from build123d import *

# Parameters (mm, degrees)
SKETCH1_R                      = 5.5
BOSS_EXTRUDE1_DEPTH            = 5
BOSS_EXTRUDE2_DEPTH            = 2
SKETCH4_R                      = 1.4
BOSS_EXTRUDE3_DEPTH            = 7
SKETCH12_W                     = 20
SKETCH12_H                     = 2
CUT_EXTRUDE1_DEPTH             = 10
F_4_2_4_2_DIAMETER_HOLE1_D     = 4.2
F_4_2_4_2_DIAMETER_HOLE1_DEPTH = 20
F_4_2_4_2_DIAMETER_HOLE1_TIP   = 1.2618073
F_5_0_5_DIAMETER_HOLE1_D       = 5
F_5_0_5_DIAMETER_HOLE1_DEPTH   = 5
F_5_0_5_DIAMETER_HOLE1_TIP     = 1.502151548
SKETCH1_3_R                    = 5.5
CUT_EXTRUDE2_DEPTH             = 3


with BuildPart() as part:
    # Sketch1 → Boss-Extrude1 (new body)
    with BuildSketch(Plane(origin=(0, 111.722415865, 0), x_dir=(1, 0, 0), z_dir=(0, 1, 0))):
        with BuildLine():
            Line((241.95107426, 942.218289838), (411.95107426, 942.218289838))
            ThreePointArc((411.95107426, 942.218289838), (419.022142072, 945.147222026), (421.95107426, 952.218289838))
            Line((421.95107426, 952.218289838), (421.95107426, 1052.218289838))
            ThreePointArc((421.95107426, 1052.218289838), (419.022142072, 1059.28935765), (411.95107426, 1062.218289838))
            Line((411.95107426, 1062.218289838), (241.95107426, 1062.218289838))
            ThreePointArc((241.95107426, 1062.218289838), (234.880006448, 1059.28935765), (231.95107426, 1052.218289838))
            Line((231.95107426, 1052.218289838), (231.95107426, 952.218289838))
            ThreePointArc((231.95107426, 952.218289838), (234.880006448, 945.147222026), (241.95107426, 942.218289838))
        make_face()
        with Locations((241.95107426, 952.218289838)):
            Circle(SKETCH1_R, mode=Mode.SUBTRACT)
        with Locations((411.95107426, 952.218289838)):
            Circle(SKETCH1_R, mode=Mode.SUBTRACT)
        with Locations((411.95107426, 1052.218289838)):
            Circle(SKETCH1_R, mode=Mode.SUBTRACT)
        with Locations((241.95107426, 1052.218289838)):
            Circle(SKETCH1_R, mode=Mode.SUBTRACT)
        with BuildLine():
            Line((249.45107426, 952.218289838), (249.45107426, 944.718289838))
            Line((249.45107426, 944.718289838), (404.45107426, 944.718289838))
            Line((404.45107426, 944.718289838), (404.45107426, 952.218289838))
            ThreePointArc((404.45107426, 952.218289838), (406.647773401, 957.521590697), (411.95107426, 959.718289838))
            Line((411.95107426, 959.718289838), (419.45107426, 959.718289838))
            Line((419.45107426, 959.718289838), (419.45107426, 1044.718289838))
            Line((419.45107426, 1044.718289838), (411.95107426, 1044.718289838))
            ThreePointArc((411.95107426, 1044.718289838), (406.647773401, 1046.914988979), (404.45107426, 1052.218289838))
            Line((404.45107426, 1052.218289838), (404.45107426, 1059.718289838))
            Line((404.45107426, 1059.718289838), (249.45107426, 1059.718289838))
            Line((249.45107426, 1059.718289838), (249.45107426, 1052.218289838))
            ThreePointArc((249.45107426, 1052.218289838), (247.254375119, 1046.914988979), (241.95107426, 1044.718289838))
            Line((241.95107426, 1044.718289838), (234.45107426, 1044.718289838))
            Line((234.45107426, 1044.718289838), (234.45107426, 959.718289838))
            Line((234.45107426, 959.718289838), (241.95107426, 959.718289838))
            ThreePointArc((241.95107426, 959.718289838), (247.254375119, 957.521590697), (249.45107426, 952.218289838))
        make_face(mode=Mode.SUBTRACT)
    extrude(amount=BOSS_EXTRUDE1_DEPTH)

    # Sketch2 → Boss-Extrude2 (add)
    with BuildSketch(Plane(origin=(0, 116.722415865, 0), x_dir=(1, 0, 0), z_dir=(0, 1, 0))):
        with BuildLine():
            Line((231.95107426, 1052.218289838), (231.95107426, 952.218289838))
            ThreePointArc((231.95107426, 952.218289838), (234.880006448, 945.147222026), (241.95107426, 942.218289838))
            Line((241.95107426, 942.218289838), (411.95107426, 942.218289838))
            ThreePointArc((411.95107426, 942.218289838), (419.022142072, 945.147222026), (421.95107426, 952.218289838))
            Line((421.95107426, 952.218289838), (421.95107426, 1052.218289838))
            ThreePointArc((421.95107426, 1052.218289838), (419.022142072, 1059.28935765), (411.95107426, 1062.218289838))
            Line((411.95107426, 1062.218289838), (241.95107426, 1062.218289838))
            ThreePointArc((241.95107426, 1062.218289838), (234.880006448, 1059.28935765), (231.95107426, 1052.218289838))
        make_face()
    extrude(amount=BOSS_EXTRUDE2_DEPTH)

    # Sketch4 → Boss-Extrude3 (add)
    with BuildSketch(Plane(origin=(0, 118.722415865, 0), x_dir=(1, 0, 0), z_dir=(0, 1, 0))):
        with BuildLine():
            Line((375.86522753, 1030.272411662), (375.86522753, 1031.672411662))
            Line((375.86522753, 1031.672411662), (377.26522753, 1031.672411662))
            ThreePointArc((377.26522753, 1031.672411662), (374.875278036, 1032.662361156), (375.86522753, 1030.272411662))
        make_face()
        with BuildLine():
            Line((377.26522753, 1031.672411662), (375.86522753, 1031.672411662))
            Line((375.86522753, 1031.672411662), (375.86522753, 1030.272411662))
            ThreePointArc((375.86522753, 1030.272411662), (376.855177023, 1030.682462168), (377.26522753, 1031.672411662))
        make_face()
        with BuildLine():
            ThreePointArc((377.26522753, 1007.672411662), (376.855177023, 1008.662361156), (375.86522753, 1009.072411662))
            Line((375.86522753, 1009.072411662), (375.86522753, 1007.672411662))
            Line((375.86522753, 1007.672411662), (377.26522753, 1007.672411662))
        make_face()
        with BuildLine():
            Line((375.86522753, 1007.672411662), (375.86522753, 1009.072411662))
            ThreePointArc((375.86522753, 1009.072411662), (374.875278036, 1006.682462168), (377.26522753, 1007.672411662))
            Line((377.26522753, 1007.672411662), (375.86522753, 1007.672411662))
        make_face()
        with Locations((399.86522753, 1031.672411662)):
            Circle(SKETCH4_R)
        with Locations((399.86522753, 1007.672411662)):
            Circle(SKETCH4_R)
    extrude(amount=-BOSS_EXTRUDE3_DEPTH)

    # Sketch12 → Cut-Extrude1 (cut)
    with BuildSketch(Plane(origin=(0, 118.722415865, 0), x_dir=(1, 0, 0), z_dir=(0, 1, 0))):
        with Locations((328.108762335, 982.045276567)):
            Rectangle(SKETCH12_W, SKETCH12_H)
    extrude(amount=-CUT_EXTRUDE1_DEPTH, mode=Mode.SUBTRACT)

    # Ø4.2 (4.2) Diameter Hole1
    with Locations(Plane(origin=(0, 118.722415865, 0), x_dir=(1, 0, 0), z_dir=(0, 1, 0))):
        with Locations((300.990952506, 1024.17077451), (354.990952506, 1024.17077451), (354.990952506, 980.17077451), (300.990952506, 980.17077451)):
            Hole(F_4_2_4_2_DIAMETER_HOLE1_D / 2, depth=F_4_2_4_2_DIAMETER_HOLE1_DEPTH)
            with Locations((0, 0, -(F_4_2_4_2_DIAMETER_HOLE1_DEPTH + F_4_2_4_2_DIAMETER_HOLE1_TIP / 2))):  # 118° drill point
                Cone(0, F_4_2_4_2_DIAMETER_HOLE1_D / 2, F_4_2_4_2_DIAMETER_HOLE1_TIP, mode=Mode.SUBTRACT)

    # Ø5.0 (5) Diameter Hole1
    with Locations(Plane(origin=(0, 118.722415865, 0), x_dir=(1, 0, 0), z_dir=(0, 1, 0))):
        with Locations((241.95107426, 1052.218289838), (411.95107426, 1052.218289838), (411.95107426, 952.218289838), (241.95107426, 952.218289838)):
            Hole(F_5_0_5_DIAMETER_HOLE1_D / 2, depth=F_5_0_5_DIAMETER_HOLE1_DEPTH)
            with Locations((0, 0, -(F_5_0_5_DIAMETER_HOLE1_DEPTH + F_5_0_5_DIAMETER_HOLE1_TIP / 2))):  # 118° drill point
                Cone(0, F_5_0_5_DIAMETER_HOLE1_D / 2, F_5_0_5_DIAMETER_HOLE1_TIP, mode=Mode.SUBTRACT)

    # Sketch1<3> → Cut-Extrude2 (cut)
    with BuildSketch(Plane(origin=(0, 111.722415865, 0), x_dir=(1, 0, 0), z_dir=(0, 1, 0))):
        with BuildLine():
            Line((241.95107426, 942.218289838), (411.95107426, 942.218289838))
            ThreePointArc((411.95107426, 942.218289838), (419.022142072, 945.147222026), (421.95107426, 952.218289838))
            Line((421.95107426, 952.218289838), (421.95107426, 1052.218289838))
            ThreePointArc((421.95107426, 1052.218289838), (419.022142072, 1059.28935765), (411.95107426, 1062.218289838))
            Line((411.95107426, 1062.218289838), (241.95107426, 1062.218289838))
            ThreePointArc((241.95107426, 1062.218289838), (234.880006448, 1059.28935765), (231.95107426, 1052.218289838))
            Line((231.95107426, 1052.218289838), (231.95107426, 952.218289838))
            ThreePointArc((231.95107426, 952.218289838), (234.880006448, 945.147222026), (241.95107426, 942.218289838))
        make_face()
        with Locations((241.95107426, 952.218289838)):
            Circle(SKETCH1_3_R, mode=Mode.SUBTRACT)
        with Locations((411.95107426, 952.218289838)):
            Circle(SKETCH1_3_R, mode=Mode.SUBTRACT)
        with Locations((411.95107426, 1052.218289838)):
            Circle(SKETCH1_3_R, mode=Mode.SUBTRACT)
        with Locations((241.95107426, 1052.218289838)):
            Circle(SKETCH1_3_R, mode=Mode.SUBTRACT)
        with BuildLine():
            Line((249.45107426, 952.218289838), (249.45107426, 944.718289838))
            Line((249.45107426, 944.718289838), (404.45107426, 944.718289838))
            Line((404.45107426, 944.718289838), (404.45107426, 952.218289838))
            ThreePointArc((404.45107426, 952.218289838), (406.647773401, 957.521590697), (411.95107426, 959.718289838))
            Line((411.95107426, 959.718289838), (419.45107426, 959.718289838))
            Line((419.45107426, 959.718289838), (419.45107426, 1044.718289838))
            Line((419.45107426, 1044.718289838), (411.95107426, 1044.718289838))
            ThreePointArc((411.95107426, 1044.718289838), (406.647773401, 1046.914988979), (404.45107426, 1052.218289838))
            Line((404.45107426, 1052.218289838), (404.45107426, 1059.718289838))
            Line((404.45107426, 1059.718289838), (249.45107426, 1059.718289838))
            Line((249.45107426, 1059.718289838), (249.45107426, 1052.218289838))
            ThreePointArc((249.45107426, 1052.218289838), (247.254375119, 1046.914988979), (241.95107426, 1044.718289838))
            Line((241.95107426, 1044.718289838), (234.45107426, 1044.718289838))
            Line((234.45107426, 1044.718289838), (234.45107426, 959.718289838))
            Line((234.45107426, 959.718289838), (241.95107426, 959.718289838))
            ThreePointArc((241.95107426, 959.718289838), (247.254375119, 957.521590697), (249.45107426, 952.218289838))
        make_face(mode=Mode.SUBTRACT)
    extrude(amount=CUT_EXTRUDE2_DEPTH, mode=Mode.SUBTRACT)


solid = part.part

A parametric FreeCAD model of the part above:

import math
import FreeCAD as App
import Part
import Sketcher
from FreeCAD import Vector
Q = App.Units.Quantity

doc = App.newDocument("Part")
params = doc.addObject("Spreadsheet::Sheet", "Params")
for row, (alias, value) in enumerate([
    ("sketch1_diameter", "11 mm"),
    ("sketch1_radius", "10 mm"),
    ("sketch1_radius2", "7.5 mm"),
    ("sketch1_width", "170 mm"),
    ("sketch1_height", "100 mm"),
    ("pad1_length", "5 mm"),
    ("sketch2_radius", "10 mm"),
    ("sketch2_width", "170 mm"),
    ("sketch2_height", "100 mm"),
    ("pad2_length", "2 mm"),
    ("sketch3_diameter", "2.8 mm"),
    ("pad3_length", "7 mm"),
    ("sketch4_width", "20 mm"),
    ("sketch4_height", "2 mm"),
    ("pocket1_length", "10 mm"),
    ("sketch5_diameter", "4.2 mm"),
    ("hole_diameter", "4.2 mm"),
    ("hole_depth", "20 mm"),
    ("sketch6_diameter", "5 mm"),
    ("hole2_diameter", "5 mm"),
    ("hole2_depth", "5 mm"),
    ("sketch7_diameter", "11 mm"),
    ("sketch7_radius", "10 mm"),
    ("sketch7_radius2", "7.5 mm"),
    ("sketch7_width", "170 mm"),
    ("sketch7_height", "100 mm"),
    ("pocket2_length", "3 mm"),
], start=1):
    params.set(f"A{row}", alias)
    params.set(f"B{row}", "=" + value)
    params.setAlias(f"B{row}", alias)

body = doc.addObject("PartDesign::Body", "Body")

# Sketch on XZ plane
sketch1 = body.newObject("Sketcher::SketchObject", "Sketch")
sketch1.AttachmentSupport = (doc.getObject("XZ_Plane"), [""])
sketch1.MapMode = "FlatFace"
sketch1.AttachmentOffset = App.Placement(Vector(0, 0, -111.722416), App.Rotation())
sketch1.addGeometry([
    Part.LineSegment(Vector(242, -942, 0), Vector(412, -942, 0)),  # 0
    Part.ArcOfCircle(Part.Circle(Vector(412, -952, 0), Vector(0, 0, 1), 10), math.radians(0), math.radians(90)),  # 1
    Part.LineSegment(Vector(422, -952, 0), Vector(422, -1052, 0)),  # 2
    Part.ArcOfCircle(Part.Circle(Vector(412, -1052, 0), Vector(0, 0, 1), 10), math.radians(-90), math.radians(0)),  # 3
    Part.LineSegment(Vector(412, -1062, 0), Vector(242, -1062, 0)),  # 4
    Part.ArcOfCircle(Part.Circle(Vector(242, -1052, 0), Vector(0, 0, 1), 10), math.radians(180), math.radians(270)),  # 5
    Part.LineSegment(Vector(232, -1052, 0), Vector(232, -952, 0)),  # 6
    Part.ArcOfCircle(Part.Circle(Vector(242, -952, 0), Vector(0, 0, 1), 10), math.radians(90), math.radians(180)),  # 7
    Part.Circle(Vector(242, -952, 0), Vector(0, 0, 1), 6),  # 8
    Part.Circle(Vector(412, -952, 0), Vector(0, 0, 1), 6),  # 9
    Part.Circle(Vector(242, -1052, 0), Vector(0, 0, 1), 6),  # 10
    Part.LineSegment(Vector(249, -945, 0), Vector(249, -952, 0)),  # 11
    Part.ArcOfCircle(Part.Circle(Vector(242, -952, 0), Vector(0, 0, 1), 8), math.radians(-90), math.radians(0)),  # 12
    Part.LineSegment(Vector(242, -960, 0), Vector(234, -960, 0)),  # 13
    Part.LineSegment(Vector(234, -960, 0), Vector(234, -1045, 0)),  # 14
    Part.LineSegment(Vector(234, -1045, 0), Vector(242, -1045, 0)),  # 15
    Part.ArcOfCircle(Part.Circle(Vector(242, -1052, 0), Vector(0, 0, 1), 8), math.radians(0), math.radians(90)),  # 16
    Part.LineSegment(Vector(249, -1052, 0), Vector(249, -1060, 0)),  # 17
    Part.LineSegment(Vector(249, -1060, 0), Vector(404, -1060, 0)),  # 18
    Part.LineSegment(Vector(404, -1060, 0), Vector(404, -1052, 0)),  # 19
    Part.ArcOfCircle(Part.Circle(Vector(412, -1052, 0), Vector(0, 0, 1), 8), math.radians(90), math.radians(180)),  # 20
    Part.LineSegment(Vector(412, -1045, 0), Vector(419, -1045, 0)),  # 21
    Part.LineSegment(Vector(419, -1045, 0), Vector(419, -960, 0)),  # 22
    Part.LineSegment(Vector(419, -960, 0), Vector(412, -960, 0)),  # 23
    Part.ArcOfCircle(Part.Circle(Vector(412, -952, 0), Vector(0, 0, 1), 8), math.radians(180), math.radians(270)),  # 24
    Part.LineSegment(Vector(404, -952, 0), Vector(404, -945, 0)),  # 25
    Part.LineSegment(Vector(404, -945, 0), Vector(249, -945, 0)),  # 26
    Part.Circle(Vector(412, -1052, 0), Vector(0, 0, 1), 6),  # 27
], False)
sketch1.addConstraint([
    Sketcher.Constraint("Tangent", 0, 2, 1, 2),
    Sketcher.Constraint("Tangent", 1, 1, 2, 1),
    Sketcher.Constraint("Tangent", 2, 2, 3, 2),
    Sketcher.Constraint("Tangent", 3, 1, 4, 1),
    Sketcher.Constraint("Tangent", 4, 2, 5, 2),
    Sketcher.Constraint("Tangent", 5, 1, 6, 1),
    Sketcher.Constraint("Tangent", 6, 2, 7, 2),
    Sketcher.Constraint("Tangent", 7, 1, 0, 1),
    Sketcher.Constraint("Tangent", 11, 2, 12, 2),
    Sketcher.Constraint("Tangent", 12, 1, 13, 1),
    Sketcher.Constraint("Coincident", 13, 2, 14, 1),
    Sketcher.Constraint("Coincident", 14, 2, 15, 1),
    Sketcher.Constraint("Tangent", 15, 2, 16, 2),
    Sketcher.Constraint("Tangent", 16, 1, 17, 1),
    Sketcher.Constraint("Coincident", 17, 2, 18, 1),
    Sketcher.Constraint("Coincident", 18, 2, 19, 1),
    Sketcher.Constraint("Tangent", 19, 2, 20, 2),
    Sketcher.Constraint("Tangent", 20, 1, 21, 1),
    Sketcher.Constraint("Coincident", 21, 2, 22, 1),
    Sketcher.Constraint("Coincident", 22, 2, 23, 1),
    Sketcher.Constraint("Tangent", 23, 2, 24, 2),
    Sketcher.Constraint("Tangent", 24, 1, 25, 1),
    Sketcher.Constraint("Coincident", 25, 2, 26, 1),
    Sketcher.Constraint("Coincident", 26, 2, 11, 1),
    Sketcher.Constraint("Horizontal", 0),
    Sketcher.Constraint("Vertical", 2),
    Sketcher.Constraint("Horizontal", 4),
    Sketcher.Constraint("Vertical", 6),
    Sketcher.Constraint("Vertical", 11),
    Sketcher.Constraint("Horizontal", 13),
    Sketcher.Constraint("Vertical", 14),
    Sketcher.Constraint("Horizontal", 15),
    Sketcher.Constraint("Vertical", 17),
    Sketcher.Constraint("Horizontal", 18),
    Sketcher.Constraint("Vertical", 19),
    Sketcher.Constraint("Horizontal", 21),
    Sketcher.Constraint("Vertical", 22),
    Sketcher.Constraint("Horizontal", 23),
    Sketcher.Constraint("Vertical", 25),
    Sketcher.Constraint("Horizontal", 26),
    Sketcher.Constraint("Coincident", 8, 3, 7, 3),
    Sketcher.Constraint("Coincident", 9, 3, 1, 3),
    Sketcher.Constraint("Coincident", 10, 3, 5, 3),
    Sketcher.Constraint("Coincident", 12, 3, 7, 3),
    Sketcher.Constraint("Coincident", 16, 3, 5, 3),
    Sketcher.Constraint("Coincident", 20, 3, 3, 3),
    Sketcher.Constraint("Coincident", 24, 3, 1, 3),
    Sketcher.Constraint("Coincident", 27, 3, 3, 3),
    Sketcher.Constraint("Equal", 1, 3),
    Sketcher.Constraint("Equal", 3, 5),
    Sketcher.Constraint("Equal", 5, 7),
    Sketcher.Constraint("Equal", 8, 9),
    Sketcher.Constraint("Equal", 9, 10),
    Sketcher.Constraint("Equal", 12, 16),
    Sketcher.Constraint("Equal", 16, 20),
    Sketcher.Constraint("Equal", 20, 24),
    Sketcher.Constraint("Equal", 10, 27),
    Sketcher.Constraint("Equal", 15, 21),
    Sketcher.Constraint("Equal", 23, 11),
    Sketcher.Constraint("Equal", 11, 17),
    Sketcher.Constraint("Diameter", 8, Q("11 mm")),
    Sketcher.Constraint("Radius", 1, Q("10 mm")),
    Sketcher.Constraint("Radius", 12, Q("7.5 mm")),
    Sketcher.Constraint("DistanceX", 0, 1, 0, 2, Q("170 mm")),
    Sketcher.Constraint("DistanceY", 2, 2, 2, 1, Q("100 mm")),
    Sketcher.Constraint("DistanceX", 13, 2, 13, 1, Q("7.5 mm")),
    Sketcher.Constraint("DistanceY", 1, 3, -1, 1, Q("952.21829 mm")),
    Sketcher.Constraint("DistanceX", -1, 1, 1, 3, Q("411.951074 mm")),
])
sketch1.setExpression("Constraints[60]", "Params.sketch1_diameter")
sketch1.setExpression("Constraints[61]", "Params.sketch1_radius")
sketch1.setExpression("Constraints[62]", "Params.sketch1_radius2")
sketch1.setExpression("Constraints[63]", "Params.sketch1_width")
sketch1.setExpression("Constraints[64]", "Params.sketch1_height")
pad1 = body.newObject("PartDesign::Pad", "Pad")
pad1.Profile = sketch1
pad1.setExpression("Length", "Params.pad1_length")
pad1.Reversed = True

# Sketch on XZ plane
sketch2 = body.newObject("Sketcher::SketchObject", "Sketch001")
sketch2.AttachmentSupport = (doc.getObject("XZ_Plane"), [""])
sketch2.MapMode = "FlatFace"
sketch2.AttachmentOffset = App.Placement(Vector(0, 0, -116.722416), App.Rotation())
sketch2.addGeometry([
    Part.LineSegment(Vector(232, -1052, 0), Vector(232, -952, 0)),  # 0
    Part.ArcOfCircle(Part.Circle(Vector(242, -952, 0), Vector(0, 0, 1), 10), math.radians(90), math.radians(180)),  # 1
    Part.LineSegment(Vector(242, -942, 0), Vector(412, -942, 0)),  # 2
    Part.ArcOfCircle(Part.Circle(Vector(412, -952, 0), Vector(0, 0, 1), 10), math.radians(0), math.radians(90)),  # 3
    Part.LineSegment(Vector(422, -952, 0), Vector(422, -1052, 0)),  # 4
    Part.ArcOfCircle(Part.Circle(Vector(412, -1052, 0), Vector(0, 0, 1), 10), math.radians(-90), math.radians(0)),  # 5
    Part.LineSegment(Vector(412, -1062, 0), Vector(242, -1062, 0)),  # 6
    Part.ArcOfCircle(Part.Circle(Vector(242, -1052, 0), Vector(0, 0, 1), 10), math.radians(180), math.radians(270)),  # 7
], False)
sketch2.addConstraint([
    Sketcher.Constraint("Tangent", 0, 2, 1, 2),
    Sketcher.Constraint("Tangent", 1, 1, 2, 1),
    Sketcher.Constraint("Tangent", 2, 2, 3, 2),
    Sketcher.Constraint("Tangent", 3, 1, 4, 1),
    Sketcher.Constraint("Tangent", 4, 2, 5, 2),
    Sketcher.Constraint("Tangent", 5, 1, 6, 1),
    Sketcher.Constraint("Tangent", 6, 2, 7, 2),
    Sketcher.Constraint("Tangent", 7, 1, 0, 1),
    Sketcher.Constraint("Vertical", 0),
    Sketcher.Constraint("Horizontal", 2),
    Sketcher.Constraint("Vertical", 4),
    Sketcher.Constraint("Horizontal", 6),
    Sketcher.Constraint("Equal", 1, 3),
    Sketcher.Constraint("Equal", 3, 5),
    Sketcher.Constraint("Equal", 5, 7),
    Sketcher.Constraint("Radius", 1, Q("10 mm")),
    Sketcher.Constraint("DistanceX", 2, 1, 2, 2, Q("170 mm")),
    Sketcher.Constraint("DistanceY", 0, 1, 0, 2, Q("100 mm")),
    Sketcher.Constraint("DistanceY", 1, 3, -1, 1, Q("952.21829 mm")),
    Sketcher.Constraint("DistanceX", -1, 1, 1, 3, Q("241.951074 mm")),
])
sketch2.setExpression("Constraints[15]", "Params.sketch2_radius")
sketch2.setExpression("Constraints[16]", "Params.sketch2_width")
sketch2.setExpression("Constraints[17]", "Params.sketch2_height")
pad2 = body.newObject("PartDesign::Pad", "Pad001")
pad2.Profile = sketch2
pad2.setExpression("Length", "Params.pad2_length")
pad2.Reversed = True

# Sketch on XZ plane
sketch3 = body.newObject("Sketcher::SketchObject", "Sketch002")
sketch3.AttachmentSupport = (doc.getObject("XZ_Plane"), [""])
sketch3.MapMode = "FlatFace"
sketch3.AttachmentOffset = App.Placement(Vector(0, 0, -118.722416), App.Rotation())
sketch3.addGeometry([
    Part.ArcOfCircle(Part.Circle(Vector(375.9, -1031.7, 0), Vector(0, 0, 1), 1.4), math.radians(90), math.radians(360)),  # 0
    Part.ArcOfCircle(Part.Circle(Vector(375.9, -1031.7, 0), Vector(0, 0, 1), 1.4), math.radians(0), math.radians(90)),  # 1
    Part.ArcOfCircle(Part.Circle(Vector(375.9, -1007.7, 0), Vector(0, 0, 1), 1.4), math.radians(-90), math.radians(0)),  # 2
    Part.ArcOfCircle(Part.Circle(Vector(375.9, -1007.7, 0), Vector(0, 0, 1), 1.4), math.radians(0), math.radians(270)),  # 3
    Part.Circle(Vector(399.9, -1031.7, 0), Vector(0, 0, 1), 1.4),  # 4
    Part.Circle(Vector(399.9, -1007.7, 0), Vector(0, 0, 1), 1.4),  # 5
], False)
sketch3.addConstraint([
    Sketcher.Constraint("Tangent", 0, 1, 1, 2),
    Sketcher.Constraint("Coincident", 1, 1, 0, 2),
    Sketcher.Constraint("Tangent", 2, 1, 3, 2),
    Sketcher.Constraint("Coincident", 3, 1, 2, 2),
    Sketcher.Constraint("Equal", 1, 2),
    Sketcher.Constraint("Equal", 3, 4),
    Sketcher.Constraint("Equal", 4, 5),
    Sketcher.Constraint("Horizontal", 1, 3, 4, 3),
    Sketcher.Constraint("Horizontal", 3, 3, 5, 3),
    Sketcher.Constraint("Horizontal", 4, 3, 1, 1),
    Sketcher.Constraint("Horizontal", 5, 3, 3, 1),
    Sketcher.Constraint("Vertical", 1, 3, 2, 3),
    Sketcher.Constraint("Vertical", 4, 3, 5, 3),
    Sketcher.Constraint("Vertical", 3, 3, 0, 1),
    Sketcher.Constraint("Vertical", 0, 1, 2, 1),
    Sketcher.Constraint("Diameter", 4, Q("2.8 mm")),
    Sketcher.Constraint("DistanceY", 0, 3, 2, 3, Q("24 mm")),
    Sketcher.Constraint("DistanceX", 0, 3, 4, 3, Q("24 mm")),
    Sketcher.Constraint("DistanceY", 0, 3, -1, 1, Q("1031.672412 mm")),
    Sketcher.Constraint("DistanceX", -1, 1, 0, 3, Q("375.865228 mm")),
])
sketch3.setExpression("Constraints[15]", "Params.sketch3_diameter")
pad3 = body.newObject("PartDesign::Pad", "Pad002")
pad3.Profile = sketch3
pad3.setExpression("Length", "Params.pad3_length")

# Sketch on XZ plane
sketch4 = body.newObject("Sketcher::SketchObject", "Sketch003")
sketch4.AttachmentSupport = (doc.getObject("XZ_Plane"), [""])
sketch4.MapMode = "FlatFace"
sketch4.AttachmentOffset = App.Placement(Vector(0, 0, -118.722416), App.Rotation())
sketch4.addGeometry([
    Part.LineSegment(Vector(318.1, -983, 0), Vector(318.1, -981, 0)),
    Part.LineSegment(Vector(318.1, -981, 0), Vector(338.1, -981, 0)),
    Part.LineSegment(Vector(338.1, -981, 0), Vector(338.1, -983, 0)),
    Part.LineSegment(Vector(338.1, -983, 0), Vector(318.1, -983, 0)),
], False)
sketch4.addConstraint([
    Sketcher.Constraint("Coincident", 0, 2, 1, 1),
    Sketcher.Constraint("Coincident", 1, 2, 2, 1),
    Sketcher.Constraint("Coincident", 2, 2, 3, 1),
    Sketcher.Constraint("Coincident", 3, 2, 0, 1),
    Sketcher.Constraint("Vertical", 0),
    Sketcher.Constraint("Horizontal", 1),
    Sketcher.Constraint("Vertical", 2),
    Sketcher.Constraint("Horizontal", 3),
    Sketcher.Constraint("DistanceX", 1, 1, 1, 2, Q("20 mm")),
    Sketcher.Constraint("DistanceY", 0, 1, 0, 2, Q("2 mm")),
    Sketcher.Constraint("DistanceX", -1, 1, 0, 2, Q("318.108762 mm")),
    Sketcher.Constraint("DistanceY", 0, 2, -1, 1, Q("981.045277 mm")),
])
sketch4.setExpression("Constraints[8]", "Params.sketch4_width")
sketch4.setExpression("Constraints[9]", "Params.sketch4_height")
pocket1 = body.newObject("PartDesign::Pocket", "Pocket")
pocket1.Profile = sketch4
pocket1.setExpression("Length", "Params.pocket1_length")
pocket1.Reversed = True

# Sketch on XZ plane
sketch5 = body.newObject("Sketcher::SketchObject", "Sketch004")
sketch5.AttachmentSupport = (doc.getObject("XZ_Plane"), [""])
sketch5.MapMode = "FlatFace"
sketch5.AttachmentOffset = App.Placement(Vector(0, 0, -118.722416), App.Rotation())
sketch5.addGeometry([
    Part.Circle(Vector(301, -1024.2, 0), Vector(0, 0, 1), 2.1),
    Part.Circle(Vector(355, -1024.2, 0), Vector(0, 0, 1), 2.1),
    Part.Circle(Vector(355, -980.2, 0), Vector(0, 0, 1), 2.1),
    Part.Circle(Vector(301, -980.2, 0), Vector(0, 0, 1), 2.1),
], False)
sketch5.addConstraint([
    Sketcher.Constraint("Equal", 0, 1),
    Sketcher.Constraint("Equal", 1, 2),
    Sketcher.Constraint("Equal", 2, 3),
    Sketcher.Constraint("Horizontal", 0, 3, 1, 3),
    Sketcher.Constraint("Horizontal", 2, 3, 3, 3),
    Sketcher.Constraint("Vertical", 1, 3, 2, 3),
    Sketcher.Constraint("Vertical", 0, 3, 3, 3),
    Sketcher.Constraint("Diameter", 0, Q("4.2 mm")),
    Sketcher.Constraint("DistanceX", 0, 3, 1, 3, Q("54 mm")),
    Sketcher.Constraint("DistanceY", 1, 3, 2, 3, Q("44 mm")),
    Sketcher.Constraint("DistanceX", -1, 1, 0, 3, Q("300.990953 mm")),
    Sketcher.Constraint("DistanceY", 0, 3, -1, 1, Q("1024.170775 mm")),
])
sketch5.setExpression("Constraints[7]", "Params.sketch5_diameter")
doc.recompute()
hole = body.newObject("PartDesign::Hole", "Hole")
hole.Profile = sketch5
hole.ThreadType = "None"
hole.setExpression("Diameter", "Params.hole_diameter")
hole.DepthType = "Dimension"
hole.setExpression("Depth", "Params.hole_depth")
hole.DrillPoint = "Angled"
hole.DrillPointAngle = 118
hole.Reversed = True

# Sketch on XZ plane
sketch6 = body.newObject("Sketcher::SketchObject", "Sketch005")
sketch6.AttachmentSupport = (doc.getObject("XZ_Plane"), [""])
sketch6.MapMode = "FlatFace"
sketch6.AttachmentOffset = App.Placement(Vector(0, 0, -118.722416), App.Rotation())
sketch6.addGeometry([
    Part.Circle(Vector(242, -1052.2, 0), Vector(0, 0, 1), 2.5),
    Part.Circle(Vector(412, -1052.2, 0), Vector(0, 0, 1), 2.5),
    Part.Circle(Vector(412, -952.2, 0), Vector(0, 0, 1), 2.5),
    Part.Circle(Vector(242, -952.2, 0), Vector(0, 0, 1), 2.5),
], False)
sketch6.addConstraint([
    Sketcher.Constraint("Equal", 0, 1),
    Sketcher.Constraint("Equal", 1, 2),
    Sketcher.Constraint("Equal", 2, 3),
    Sketcher.Constraint("Horizontal", 0, 3, 1, 3),
    Sketcher.Constraint("Horizontal", 2, 3, 3, 3),
    Sketcher.Constraint("Vertical", 1, 3, 2, 3),
    Sketcher.Constraint("Vertical", 0, 3, 3, 3),
    Sketcher.Constraint("Diameter", 0, Q("5 mm")),
    Sketcher.Constraint("DistanceX", 0, 3, 1, 3, Q("170 mm")),
    Sketcher.Constraint("DistanceY", 1, 3, 2, 3, Q("100 mm")),
    Sketcher.Constraint("DistanceY", 0, 3, -1, 1, Q("1052.21829 mm")),
    Sketcher.Constraint("DistanceX", -1, 1, 0, 3, Q("241.951074 mm")),
])
sketch6.setExpression("Constraints[7]", "Params.sketch6_diameter")
doc.recompute()
hole2 = body.newObject("PartDesign::Hole", "Hole001")
hole2.Profile = sketch6
hole2.ThreadType = "None"
hole2.setExpression("Diameter", "Params.hole2_diameter")
hole2.DepthType = "Dimension"
hole2.setExpression("Depth", "Params.hole2_depth")
hole2.DrillPoint = "Angled"
hole2.DrillPointAngle = 118
hole2.Reversed = True

# Sketch on XZ plane
sketch7 = body.newObject("Sketcher::SketchObject", "Sketch006")
sketch7.AttachmentSupport = (doc.getObject("XZ_Plane"), [""])
sketch7.MapMode = "FlatFace"
sketch7.AttachmentOffset = App.Placement(Vector(0, 0, -111.722416), App.Rotation())
sketch7.addGeometry([
    Part.LineSegment(Vector(242, -942, 0), Vector(412, -942, 0)),  # 0
    Part.ArcOfCircle(Part.Circle(Vector(412, -952, 0), Vector(0, 0, 1), 10), math.radians(0), math.radians(90)),  # 1
    Part.LineSegment(Vector(422, -952, 0), Vector(422, -1052, 0)),  # 2
    Part.ArcOfCircle(Part.Circle(Vector(412, -1052, 0), Vector(0, 0, 1), 10), math.radians(-90), math.radians(0)),  # 3
    Part.LineSegment(Vector(412, -1062, 0), Vector(242, -1062, 0)),  # 4
    Part.ArcOfCircle(Part.Circle(Vector(242, -1052, 0), Vector(0, 0, 1), 10), math.radians(180), math.radians(270)),  # 5
    Part.LineSegment(Vector(232, -1052, 0), Vector(232, -952, 0)),  # 6
    Part.ArcOfCircle(Part.Circle(Vector(242, -952, 0), Vector(0, 0, 1), 10), math.radians(90), math.radians(180)),  # 7
    Part.Circle(Vector(242, -952, 0), Vector(0, 0, 1), 6),  # 8
    Part.Circle(Vector(412, -952, 0), Vector(0, 0, 1), 6),  # 9
    Part.Circle(Vector(242, -1052, 0), Vector(0, 0, 1), 6),  # 10
    Part.LineSegment(Vector(249, -945, 0), Vector(249, -952, 0)),  # 11
    Part.ArcOfCircle(Part.Circle(Vector(242, -952, 0), Vector(0, 0, 1), 8), math.radians(-90), math.radians(0)),  # 12
    Part.LineSegment(Vector(242, -960, 0), Vector(234, -960, 0)),  # 13
    Part.LineSegment(Vector(234, -960, 0), Vector(234, -1045, 0)),  # 14
    Part.LineSegment(Vector(234, -1045, 0), Vector(242, -1045, 0)),  # 15
    Part.ArcOfCircle(Part.Circle(Vector(242, -1052, 0), Vector(0, 0, 1), 8), math.radians(0), math.radians(90)),  # 16
    Part.LineSegment(Vector(249, -1052, 0), Vector(249, -1060, 0)),  # 17
    Part.LineSegment(Vector(249, -1060, 0), Vector(404, -1060, 0)),  # 18
    Part.LineSegment(Vector(404, -1060, 0), Vector(404, -1052, 0)),  # 19
    Part.ArcOfCircle(Part.Circle(Vector(412, -1052, 0), Vector(0, 0, 1), 8), math.radians(90), math.radians(180)),  # 20
    Part.LineSegment(Vector(412, -1045, 0), Vector(419, -1045, 0)),  # 21
    Part.LineSegment(Vector(419, -1045, 0), Vector(419, -960, 0)),  # 22
    Part.LineSegment(Vector(419, -960, 0), Vector(412, -960, 0)),  # 23
    Part.ArcOfCircle(Part.Circle(Vector(412, -952, 0), Vector(0, 0, 1), 8), math.radians(180), math.radians(270)),  # 24
    Part.LineSegment(Vector(404, -952, 0), Vector(404, -945, 0)),  # 25
    Part.LineSegment(Vector(404, -945, 0), Vector(249, -945, 0)),  # 26
    Part.Circle(Vector(412, -1052, 0), Vector(0, 0, 1), 6),  # 27
], False)
sketch7.addConstraint([
    Sketcher.Constraint("Tangent", 0, 2, 1, 2),
    Sketcher.Constraint("Tangent", 1, 1, 2, 1),
    Sketcher.Constraint("Tangent", 2, 2, 3, 2),
    Sketcher.Constraint("Tangent", 3, 1, 4, 1),
    Sketcher.Constraint("Tangent", 4, 2, 5, 2),
    Sketcher.Constraint("Tangent", 5, 1, 6, 1),
    Sketcher.Constraint("Tangent", 6, 2, 7, 2),
    Sketcher.Constraint("Tangent", 7, 1, 0, 1),
    Sketcher.Constraint("Tangent", 11, 2, 12, 2),
    Sketcher.Constraint("Tangent", 12, 1, 13, 1),
    Sketcher.Constraint("Coincident", 13, 2, 14, 1),
    Sketcher.Constraint("Coincident", 14, 2, 15, 1),
    Sketcher.Constraint("Tangent", 15, 2, 16, 2),
    Sketcher.Constraint("Tangent", 16, 1, 17, 1),
    Sketcher.Constraint("Coincident", 17, 2, 18, 1),
    Sketcher.Constraint("Coincident", 18, 2, 19, 1),
    Sketcher.Constraint("Tangent", 19, 2, 20, 2),
    Sketcher.Constraint("Tangent", 20, 1, 21, 1),
    Sketcher.Constraint("Coincident", 21, 2, 22, 1),
    Sketcher.Constraint("Coincident", 22, 2, 23, 1),
    Sketcher.Constraint("Tangent", 23, 2, 24, 2),
    Sketcher.Constraint("Tangent", 24, 1, 25, 1),
    Sketcher.Constraint("Coincident", 25, 2, 26, 1),
    Sketcher.Constraint("Coincident", 26, 2, 11, 1),
    Sketcher.Constraint("Horizontal", 0),
    Sketcher.Constraint("Vertical", 2),
    Sketcher.Constraint("Horizontal", 4),
    Sketcher.Constraint("Vertical", 6),
    Sketcher.Constraint("Vertical", 11),
    Sketcher.Constraint("Horizontal", 13),
    Sketcher.Constraint("Vertical", 14),
    Sketcher.Constraint("Horizontal", 15),
    Sketcher.Constraint("Vertical", 17),
    Sketcher.Constraint("Horizontal", 18),
    Sketcher.Constraint("Vertical", 19),
    Sketcher.Constraint("Horizontal", 21),
    Sketcher.Constraint("Vertical", 22),
    Sketcher.Constraint("Horizontal", 23),
    Sketcher.Constraint("Vertical", 25),
    Sketcher.Constraint("Horizontal", 26),
    Sketcher.Constraint("Coincident", 8, 3, 7, 3),
    Sketcher.Constraint("Coincident", 9, 3, 1, 3),
    Sketcher.Constraint("Coincident", 10, 3, 5, 3),
    Sketcher.Constraint("Coincident", 12, 3, 7, 3),
    Sketcher.Constraint("Coincident", 16, 3, 5, 3),
    Sketcher.Constraint("Coincident", 20, 3, 3, 3),
    Sketcher.Constraint("Coincident", 24, 3, 1, 3),
    Sketcher.Constraint("Coincident", 27, 3, 3, 3),
    Sketcher.Constraint("Equal", 1, 3),
    Sketcher.Constraint("Equal", 3, 5),
    Sketcher.Constraint("Equal", 5, 7),
    Sketcher.Constraint("Equal", 8, 9),
    Sketcher.Constraint("Equal", 9, 10),
    Sketcher.Constraint("Equal", 12, 16),
    Sketcher.Constraint("Equal", 16, 20),
    Sketcher.Constraint("Equal", 20, 24),
    Sketcher.Constraint("Equal", 10, 27),
    Sketcher.Constraint("Equal", 15, 21),
    Sketcher.Constraint("Equal", 23, 11),
    Sketcher.Constraint("Equal", 11, 17),
    Sketcher.Constraint("Diameter", 8, Q("11 mm")),
    Sketcher.Constraint("Radius", 1, Q("10 mm")),
    Sketcher.Constraint("Radius", 12, Q("7.5 mm")),
    Sketcher.Constraint("DistanceX", 0, 1, 0, 2, Q("170 mm")),
    Sketcher.Constraint("DistanceY", 2, 2, 2, 1, Q("100 mm")),
    Sketcher.Constraint("DistanceX", 13, 2, 13, 1, Q("7.5 mm")),
    Sketcher.Constraint("DistanceY", 1, 3, -1, 1, Q("952.21829 mm")),
    Sketcher.Constraint("DistanceX", -1, 1, 1, 3, Q("411.951074 mm")),
])
sketch7.setExpression("Constraints[60]", "Params.sketch7_diameter")
sketch7.setExpression("Constraints[61]", "Params.sketch7_radius")
sketch7.setExpression("Constraints[62]", "Params.sketch7_radius2")
sketch7.setExpression("Constraints[63]", "Params.sketch7_width")
sketch7.setExpression("Constraints[64]", "Params.sketch7_height")
pocket2 = body.newObject("PartDesign::Pocket", "Pocket001")
pocket2.Profile = sketch7
pocket2.setExpression("Length", "Params.pocket2_length")

doc.recompute()
